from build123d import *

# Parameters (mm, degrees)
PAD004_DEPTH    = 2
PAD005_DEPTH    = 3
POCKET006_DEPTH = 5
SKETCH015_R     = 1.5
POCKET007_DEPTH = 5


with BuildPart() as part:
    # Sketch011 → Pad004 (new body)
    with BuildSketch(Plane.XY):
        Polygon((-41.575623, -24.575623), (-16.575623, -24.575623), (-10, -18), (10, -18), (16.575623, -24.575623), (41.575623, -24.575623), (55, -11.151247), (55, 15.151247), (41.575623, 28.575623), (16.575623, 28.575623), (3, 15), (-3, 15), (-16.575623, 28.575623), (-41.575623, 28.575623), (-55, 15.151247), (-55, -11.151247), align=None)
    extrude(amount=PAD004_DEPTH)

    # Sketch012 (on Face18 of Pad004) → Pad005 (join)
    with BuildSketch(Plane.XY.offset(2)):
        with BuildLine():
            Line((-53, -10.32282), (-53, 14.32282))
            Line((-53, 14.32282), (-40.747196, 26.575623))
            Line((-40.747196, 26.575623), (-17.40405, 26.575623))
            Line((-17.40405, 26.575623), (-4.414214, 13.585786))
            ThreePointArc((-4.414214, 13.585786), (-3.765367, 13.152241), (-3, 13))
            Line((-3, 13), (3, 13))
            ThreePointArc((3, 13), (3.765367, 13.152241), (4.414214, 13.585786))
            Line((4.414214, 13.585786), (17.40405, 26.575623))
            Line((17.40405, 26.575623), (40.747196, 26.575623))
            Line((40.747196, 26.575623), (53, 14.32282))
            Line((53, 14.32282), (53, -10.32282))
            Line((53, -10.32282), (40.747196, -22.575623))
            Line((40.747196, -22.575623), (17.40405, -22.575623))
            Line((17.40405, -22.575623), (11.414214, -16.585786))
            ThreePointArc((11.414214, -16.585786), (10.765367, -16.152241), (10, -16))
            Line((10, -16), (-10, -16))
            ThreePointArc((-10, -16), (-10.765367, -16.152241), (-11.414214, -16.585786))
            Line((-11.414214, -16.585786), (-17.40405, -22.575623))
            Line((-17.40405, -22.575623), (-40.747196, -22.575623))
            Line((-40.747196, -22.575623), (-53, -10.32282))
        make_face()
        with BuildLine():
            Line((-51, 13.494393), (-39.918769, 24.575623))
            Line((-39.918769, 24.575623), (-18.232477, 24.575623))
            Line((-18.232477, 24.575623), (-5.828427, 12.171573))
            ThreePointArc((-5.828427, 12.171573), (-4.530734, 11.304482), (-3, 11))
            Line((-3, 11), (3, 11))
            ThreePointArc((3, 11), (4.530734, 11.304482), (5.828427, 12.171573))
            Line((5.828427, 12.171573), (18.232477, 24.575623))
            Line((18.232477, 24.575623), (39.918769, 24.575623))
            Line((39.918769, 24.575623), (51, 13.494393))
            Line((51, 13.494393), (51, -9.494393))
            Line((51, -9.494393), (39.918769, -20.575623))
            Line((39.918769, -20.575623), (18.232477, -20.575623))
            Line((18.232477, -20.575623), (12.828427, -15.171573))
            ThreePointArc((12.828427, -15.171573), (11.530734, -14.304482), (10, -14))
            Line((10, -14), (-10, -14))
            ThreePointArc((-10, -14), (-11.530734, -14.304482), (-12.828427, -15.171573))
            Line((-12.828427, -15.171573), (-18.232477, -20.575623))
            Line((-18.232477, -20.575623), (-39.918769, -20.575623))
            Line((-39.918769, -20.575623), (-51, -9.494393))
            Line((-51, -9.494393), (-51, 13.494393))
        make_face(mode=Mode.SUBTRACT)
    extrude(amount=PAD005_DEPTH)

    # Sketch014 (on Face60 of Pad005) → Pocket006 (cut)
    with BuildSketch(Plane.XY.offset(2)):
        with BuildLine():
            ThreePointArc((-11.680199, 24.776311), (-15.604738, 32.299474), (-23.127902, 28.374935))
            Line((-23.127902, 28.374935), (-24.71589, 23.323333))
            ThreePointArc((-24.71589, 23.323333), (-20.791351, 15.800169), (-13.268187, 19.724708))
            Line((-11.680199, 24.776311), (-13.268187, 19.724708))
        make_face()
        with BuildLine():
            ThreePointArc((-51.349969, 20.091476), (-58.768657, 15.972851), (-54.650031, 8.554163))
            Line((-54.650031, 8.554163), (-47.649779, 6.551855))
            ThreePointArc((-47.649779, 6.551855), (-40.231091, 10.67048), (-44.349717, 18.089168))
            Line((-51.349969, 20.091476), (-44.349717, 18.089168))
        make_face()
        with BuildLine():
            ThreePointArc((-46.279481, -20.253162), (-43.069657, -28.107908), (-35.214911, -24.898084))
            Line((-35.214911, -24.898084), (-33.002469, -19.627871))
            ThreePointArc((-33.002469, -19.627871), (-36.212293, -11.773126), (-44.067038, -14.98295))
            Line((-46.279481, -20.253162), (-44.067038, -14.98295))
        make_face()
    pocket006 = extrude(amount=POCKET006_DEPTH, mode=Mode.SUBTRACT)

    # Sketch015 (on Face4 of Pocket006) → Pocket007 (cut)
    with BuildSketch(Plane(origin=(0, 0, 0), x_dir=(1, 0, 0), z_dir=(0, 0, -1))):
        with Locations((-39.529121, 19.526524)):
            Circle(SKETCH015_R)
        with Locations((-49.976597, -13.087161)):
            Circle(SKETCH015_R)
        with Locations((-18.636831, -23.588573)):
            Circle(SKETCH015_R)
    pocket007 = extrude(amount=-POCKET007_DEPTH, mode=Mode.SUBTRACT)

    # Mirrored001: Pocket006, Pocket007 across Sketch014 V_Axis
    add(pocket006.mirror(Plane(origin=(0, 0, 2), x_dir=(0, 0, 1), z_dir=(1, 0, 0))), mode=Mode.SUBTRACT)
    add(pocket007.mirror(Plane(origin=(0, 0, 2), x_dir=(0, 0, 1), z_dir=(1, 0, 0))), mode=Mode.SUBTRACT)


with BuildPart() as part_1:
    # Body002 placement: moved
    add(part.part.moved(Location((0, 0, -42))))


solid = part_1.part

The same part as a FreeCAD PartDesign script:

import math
import FreeCAD as App
import Part
import Sketcher


def add_polygon(sketch, points):
    """Adds a closed chain of lines whose ends are joined by coincident constraints."""
    first, n = sketch.GeometryCount, len(points)
    for a, b in zip(points, points[1:] + points[:1]):
        sketch.addGeometry(Part.LineSegment(App.Vector(*a, 0), App.Vector(*b, 0)), False)
    for i in range(n):
        sketch.addConstraint(Sketcher.Constraint("Coincident", first + i, 2, first + (i + 1) % n, 1))

doc = App.newDocument("Part")
body = doc.addObject("PartDesign::Body", "Body")

# Sketch on XY plane
sketch1 = body.newObject("Sketcher::SketchObject", "Sketch")
sketch1.AttachmentSupport = (doc.getObject("XY_Plane"), [""])
sketch1.MapMode = "FlatFace"
add_polygon(sketch1, [(-42, -25), (-17, -25), (-10, -18), (10, -18), (17, -25), (42, -25), (55, -11), (55, 15), (42, 29), (17, 29), (3, 15), (-3, 15), (-17, 29), (-42, 29), (-55, 15), (-55, -11)])  # lines 0-15
sketch1.addConstraint(Sketcher.Constraint("Horizontal", 0))
sketch1.addConstraint(Sketcher.Constraint("Horizontal", 2))
sketch1.addConstraint(Sketcher.Constraint("Horizontal", 4))
sketch1.addConstraint(Sketcher.Constraint("Vertical", 6))
sketch1.addConstraint(Sketcher.Constraint("Horizontal", 8))
sketch1.addConstraint(Sketcher.Constraint("Horizontal", 10))
sketch1.addConstraint(Sketcher.Constraint("Horizontal", 12))
sketch1.addConstraint(Sketcher.Constraint("Vertical", 14))
sketch1.addConstraint(Sketcher.Constraint("Symmetric", 0, 2, 3, 2, -2))
sketch1.addConstraint(Sketcher.Constraint("Symmetric", 8, 2, 11, 2, -2))
sketch1.addConstraint(Sketcher.Constraint("Symmetric", 6, 2, 13, 2, -2))
sketch1.addConstraint(Sketcher.Constraint("Perpendicular", 1, 3))
sketch1.addConstraint(Sketcher.Constraint("Perpendicular", 3, 5))
sketch1.addConstraint(Sketcher.Constraint("Perpendicular", 5, 7))
sketch1.addConstraint(Sketcher.Constraint("Perpendicular", 7, 9))
sketch1.addConstraint(Sketcher.Constraint("Perpendicular", 9, 11))
sketch1.addConstraint(Sketcher.Constraint("Perpendicular", 11, 13))
sketch1.addConstraint(Sketcher.Constraint("Perpendicular", 13, 15))
sketch1.addConstraint(Sketcher.Constraint("Horizontal", 5, 2, 14, 2))
sketch1.addConstraint(Sketcher.Constraint("Vertical", 4, 2, 7, 2))
sketch1.addConstraint(Sketcher.Constraint("Vertical", 3, 2, 8, 2))
sketch1.addConstraint(Sketcher.Constraint("Vertical", 12, 2, 15, 2))
sketch1.addConstraint(Sketcher.Constraint("DistanceX", 0, 1, 0, 2, 25.0))
sketch1.addConstraint(Sketcher.Constraint("DistanceX", 2, 1, 2, 2, 20.0))
sketch1.addConstraint(Sketcher.Constraint("DistanceX", 10, 2, 10, 1, 6.0))
sketch1.addConstraint(Sketcher.Constraint("DistanceY", 1, 2, -1, 1, 18.0))
sketch1.addConstraint(Sketcher.Constraint("DistanceX", -1, 1, 5, 2, 55.0))
sketch1.addConstraint(Sketcher.Constraint("DistanceY", -1, 1, 9, 2, 15.0))
sketch1.addConstraint(Sketcher.Constraint("Distance", 9, 19.19883))
pad1 = body.newObject("PartDesign::Pad", "Pad")
pad1.Profile = sketch1
pad1.Length = 2

# Sketch on XY plane
sketch2 = body.newObject("Sketcher::SketchObject", "Sketch001")
sketch2.AttachmentSupport = (doc.getObject("XY_Plane"), [""])
sketch2.MapMode = "FlatFace"
sketch2.AttachmentOffset = App.Placement(App.Vector(0, 0, 2), App.Rotation())
sketch2.addGeometry(Part.LineSegment(App.Vector(-53, 14.3, 0), App.Vector(-53, -10.3, 0)), False)
sketch2.addGeometry(Part.LineSegment(App.Vector(-53, -10.3, 0), App.Vector(-40.7, -22.6, 0)), False)
sketch2.addGeometry(Part.LineSegment(App.Vector(-40.7, -22.6, 0), App.Vector(-17.4, -22.6, 0)), False)
sketch2.addGeometry(Part.LineSegment(App.Vector(-17.4, -22.6, 0), App.Vector(-11.4, -16.6, 0)), False)
sketch2.addGeometry(Part.ArcOfCircle(Part.Circle(App.Vector(-10, -18, 0), App.Vector(0, 0, 1), 2), math.radians(90), math.radians(135)), False)
sketch2.addGeometry(Part.LineSegment(App.Vector(-10, -16, 0), App.Vector(10, -16, 0)), False)
sketch2.addGeometry(Part.ArcOfCircle(Part.Circle(App.Vector(10, -18, 0), App.Vector(0, 0, 1), 2), math.radians(45), math.radians(90)), False)
sketch2.addGeometry(Part.LineSegment(App.Vector(11.4, -16.6, 0), App.Vector(17.4, -22.6, 0)), False)
sketch2.addGeometry(Part.LineSegment(App.Vector(17.4, -22.6, 0), App.Vector(40.7, -22.6, 0)), False)
sketch2.addGeometry(Part.LineSegment(App.Vector(40.7, -22.6, 0), App.Vector(53, -10.3, 0)), False)
sketch2.addGeometry(Part.LineSegment(App.Vector(53, -10.3, 0), App.Vector(53, 14.3, 0)), False)
sketch2.addGeometry(Part.LineSegment(App.Vector(53, 14.3, 0), App.Vector(40.7, 26.6, 0)), False)
sketch2.addGeometry(Part.LineSegment(App.Vector(40.7, 26.6, 0), App.Vector(17.4, 26.6, 0)), False)
sketch2.addGeometry(Part.LineSegment(App.Vector(17.4, 26.6, 0), App.Vector(4.4, 13.6, 0)), False)
sketch2.addGeometry(Part.ArcOfCircle(Part.Circle(App.Vector(3, 15, 0), App.Vector(0, 0, 1), 2), math.radians(-90), math.radians(-45)), False)
sketch2.addGeometry(Part.LineSegment(App.Vector(3, 13, 0), App.Vector(-3, 13, 0)), False)
sketch2.addGeometry(Part.ArcOfCircle(Part.Circle(App.Vector(-3, 15, 0), App.Vector(0, 0, 1), 2), math.radians(-135), math.radians(-90)), False)
sketch2.addGeometry(Part.LineSegment(App.Vector(-4.4, 13.6, 0), App.Vector(-17.4, 26.6, 0)), False)
sketch2.addGeometry(Part.LineSegment(App.Vector(-17.4, 26.6, 0), App.Vector(-40.7, 26.6, 0)), False)
sketch2.addGeometry(Part.LineSegment(App.Vector(-40.7, 26.6, 0), App.Vector(-53, 14.3, 0)), False)
sketch2.addGeometry(Part.LineSegment(App.Vector(-51, 13.5, 0), App.Vector(-39.9, 24.6, 0)), False)
sketch2.addGeometry(Part.LineSegment(App.Vector(-39.9, 24.6, 0), App.Vector(-18.2, 24.6, 0)), False)
sketch2.addGeometry(Part.LineSegment(App.Vector(-18.2, 24.6, 0), App.Vector(-5.8, 12.2, 0)), False)
sketch2.addGeometry(Part.ArcOfCircle(Part.Circle(App.Vector(-3, 15, 0), App.Vector(0, 0, 1), 4), math.radians(-135), math.radians(-90)), False)
sketch2.addGeometry(Part.LineSegment(App.Vector(-3, 11, 0), App.Vector(3, 11, 0)), False)
sketch2.addGeometry(Part.ArcOfCircle(Part.Circle(App.Vector(3, 15, 0), App.Vector(0, 0, 1), 4), math.radians(-90), math.radians(-45)), False)
sketch2.addGeometry(Part.LineSegment(App.Vector(5.8, 12.2, 0), App.Vector(18.2, 24.6, 0)), False)
sketch2.addGeometry(Part.LineSegment(App.Vector(18.2, 24.6, 0), App.Vector(39.9, 24.6, 0)), False)
sketch2.addGeometry(Part.LineSegment(App.Vector(39.9, 24.6, 0), App.Vector(51, 13.5, 0)), False)
sketch2.addGeometry(Part.LineSegment(App.Vector(51, 13.5, 0), App.Vector(51, -9.5, 0)), False)
sketch2.addGeometry(Part.LineSegment(App.Vector(51, -9.5, 0), App.Vector(39.9, -20.6, 0)), False)
sketch2.addGeometry(Part.LineSegment(App.Vector(39.9, -20.6, 0), App.Vector(18.2, -20.6, 0)), False)
sketch2.addGeometry(Part.LineSegment(App.Vector(18.2, -20.6, 0), App.Vector(12.8, -15.2, 0)), False)
sketch2.addGeometry(Part.ArcOfCircle(Part.Circle(App.Vector(10, -18, 0), App.Vector(0, 0, 1), 4), math.radians(45), math.radians(90)), False)
sketch2.addGeometry(Part.LineSegment(App.Vector(10, -14, 0), App.Vector(-10, -14, 0)), False)
sketch2.addGeometry(Part.ArcOfCircle(Part.Circle(App.Vector(-10, -18, 0), App.Vector(0, 0, 1), 4), math.radians(90), math.radians(135)), False)
sketch2.addGeometry(Part.LineSegment(App.Vector(-12.8, -15.2, 0), App.Vector(-18.2, -20.6, 0)), False)
sketch2.addGeometry(Part.LineSegment(App.Vector(-18.2, -20.6, 0), App.Vector(-39.9, -20.6, 0)), False)
sketch2.addGeometry(Part.LineSegment(App.Vector(-39.9, -20.6, 0), App.Vector(-51, -9.5, 0)), False)
sketch2.addGeometry(Part.LineSegment(App.Vector(-51, -9.5, 0), App.Vector(-51, 13.5, 0)), False)
sketch2.addConstraint(Sketcher.Constraint("Coincident", 0, 2, 1, 1))
sketch2.addConstraint(Sketcher.Constraint("Coincident", 1, 2, 2, 1))
sketch2.addConstraint(Sketcher.Constraint("Coincident", 2, 2, 3, 1))
sketch2.addConstraint(Sketcher.Constraint("Tangent", 3, 2, 4, 2))
sketch2.addConstraint(Sketcher.Constraint("Tangent", 4, 1, 5, 1))
sketch2.addConstraint(Sketcher.Constraint("Tangent", 5, 2, 6, 2))
sketch2.addConstraint(Sketcher.Constraint("Tangent", 6, 1, 7, 1))
sketch2.addConstraint(Sketcher.Constraint("Coincident", 7, 2, 8, 1))
sketch2.addConstraint(Sketcher.Constraint("Coincident", 8, 2, 9, 1))
sketch2.addConstraint(Sketcher.Constraint("Coincident", 9, 2, 10, 1))
sketch2.addConstraint(Sketcher.Constraint("Coincident", 10, 2, 11, 1))
sketch2.addConstraint(Sketcher.Constraint("Coincident", 11, 2, 12, 1))
sketch2.addConstraint(Sketcher.Constraint("Coincident", 12, 2, 13, 1))
sketch2.addConstraint(Sketcher.Constraint("Tangent", 13, 2, 14, 2))
sketch2.addConstraint(Sketcher.Constraint("Tangent", 14, 1, 15, 1))
sketch2.addConstraint(Sketcher.Constraint("Tangent", 15, 2, 16, 2))
sketch2.addConstraint(Sketcher.Constraint("Tangent", 16, 1, 17, 1))
sketch2.addConstraint(Sketcher.Constraint("Coincident", 17, 2, 18, 1))
sketch2.addConstraint(Sketcher.Constraint("Coincident", 18, 2, 19, 1))
sketch2.addConstraint(Sketcher.Constraint("Coincident", 19, 2, 0, 1))
sketch2.addConstraint(Sketcher.Constraint("Coincident", 20, 2, 21, 1))
sketch2.addConstraint(Sketcher.Constraint("Coincident", 21, 2, 22, 1))
sketch2.addConstraint(Sketcher.Constraint("Tangent", 22, 2, 23, 1))
sketch2.addConstraint(Sketcher.Constraint("Tangent", 23, 2, 24, 1))
sketch2.addConstraint(Sketcher.Constraint("Tangent", 24, 2, 25, 1))
sketch2.addConstraint(Sketcher.Constraint("Tangent", 25, 2, 26, 1))
sketch2.addConstraint(Sketcher.Constraint("Coincident", 26, 2, 27, 1))
sketch2.addConstraint(Sketcher.Constraint("Coincident", 27, 2, 28, 1))
sketch2.addConstraint(Sketcher.Constraint("Coincident", 28, 2, 29, 1))
sketch2.addConstraint(Sketcher.Constraint("Coincident", 29, 2, 30, 1))
sketch2.addConstraint(Sketcher.Constraint("Coincident", 30, 2, 31, 1))
sketch2.addConstraint(Sketcher.Constraint("Coincident", 31, 2, 32, 1))
sketch2.addConstraint(Sketcher.Constraint("Tangent", 32, 2, 33, 1))
sketch2.addConstraint(Sketcher.Constraint("Tangent", 33, 2, 34, 1))
sketch2.addConstraint(Sketcher.Constraint("Tangent", 34, 2, 35, 1))
sketch2.addConstraint(Sketcher.Constraint("Tangent", 35, 2, 36, 1))
sketch2.addConstraint(Sketcher.Constraint("Coincident", 36, 2, 37, 1))
sketch2.addConstraint(Sketcher.Constraint("Coincident", 37, 2, 38, 1))
sketch2.addConstraint(Sketcher.Constraint("Coincident", 38, 2, 39, 1))
sketch2.addConstraint(Sketcher.Constraint("Coincident", 39, 2, 20, 1))
sketch2.addConstraint(Sketcher.Constraint("Vertical", 0))
sketch2.addConstraint(Sketcher.Constraint("Horizontal", 2))
sketch2.addConstraint(Sketcher.Constraint("Horizontal", 5))
sketch2.addConstraint(Sketcher.Constraint("Horizontal", 8))
sketch2.addConstraint(Sketcher.Constraint("Vertical", 10))
sketch2.addConstraint(Sketcher.Constraint("Horizontal", 12))
sketch2.addConstraint(Sketcher.Constraint("Horizontal", 15))
sketch2.addConstraint(Sketcher.Constraint("Horizontal", 18))
sketch2.addConstraint(Sketcher.Constraint("Horizontal", 21))
sketch2.addConstraint(Sketcher.Constraint("Horizontal", 24))
sketch2.addConstraint(Sketcher.Constraint("Horizontal", 27))
sketch2.addConstraint(Sketcher.Constraint("Vertical", 29))
sketch2.addConstraint(Sketcher.Constraint("Horizontal", 31))
sketch2.addConstraint(Sketcher.Constraint("Horizontal", 34))
sketch2.addConstraint(Sketcher.Constraint("Horizontal", 37))
sketch2.addConstraint(Sketcher.Constraint("Vertical", 39))
sketch2.addConstraint(Sketcher.Constraint("Coincident", 23, 3, 16, 3))
sketch2.addConstraint(Sketcher.Constraint("Coincident", 25, 3, 14, 3))
sketch2.addConstraint(Sketcher.Constraint("Coincident", 33, 3, 6, 3))
sketch2.addConstraint(Sketcher.Constraint("Coincident", 35, 3, 4, 3))
sketch2.addConstraint(Sketcher.Constraint("Equal", 4, 6))
sketch2.addConstraint(Sketcher.Constraint("Equal", 6, 14))
sketch2.addConstraint(Sketcher.Constraint("Equal", 14, 16))
sketch2.addConstraint(Sketcher.Constraint("Equal", 25, 33))
sketch2.addConstraint(Sketcher.Constraint("Symmetric", 3, 2, 6, 1, -2))
sketch2.addConstraint(Sketcher.Constraint("Symmetric", 1, 2, 8, 2, -2))
sketch2.addConstraint(Sketcher.Constraint("Symmetric", 0, 2, 9, 2, -2))
sketch2.addConstraint(Sketcher.Constraint("Symmetric", 13, 2, 16, 1, -2))
sketch2.addConstraint(Sketcher.Constraint("Symmetric", 11, 2, 18, 2, -2))
sketch2.addConstraint(Sketcher.Constraint("Symmetric", 21, 2, 26, 2, -2))
sketch2.addConstraint(Sketcher.Constraint("Symmetric", 31, 2, 36, 2, -2))
sketch2.addConstraint(Sketcher.Constraint("Symmetric", 29, 2, 38, 2, -2))
sketch2.addConstraint(Sketcher.Constraint("Perpendicular", 1, 3))
sketch2.addConstraint(Sketcher.Constraint("Perpendicular", 3, 7))
sketch2.addConstraint(Sketcher.Constraint("Perpendicular", 9, 11))
sketch2.addConstraint(Sketcher.Constraint("Perpendicular", 11, 13))
sketch2.addConstraint(Sketcher.Constraint("Perpendicular", 17, 19))
sketch2.addConstraint(Sketcher.Constraint("Parallel", 19, 20))
sketch2.addConstraint(Sketcher.Constraint("Perpendicular", 20, 22))
sketch2.addConstraint(Sketcher.Constraint("Perpendicular", 26, 28))
sketch2.addConstraint(Sketcher.Constraint("Perpendicular", 28, 30))
sketch2.addConstraint(Sketcher.Constraint("Perpendicular", 30, 32))
sketch2.addConstraint(Sketcher.Constraint("Perpendicular", 36, 38))
sketch2.addConstraint(Sketcher.Constraint("Horizontal", 28, 2, 39, 2))
sketch2.addConstraint(Sketcher.Constraint("Vertical", 8, 2, 11, 2))
sketch2.addConstraint(Sketcher.Constraint("Vertical", 7, 2, 12, 2))
sketch2.addConstraint(Sketcher.Constraint("Vertical", 27, 2, 30, 2))
sketch2.addConstraint(Sketcher.Constraint("Vertical", 26, 2, 31, 2))
sketch2.addConstraint(Sketcher.Constraint("Radius", 23, 3.999999))
sketch2.addConstraint(Sketcher.Constraint("DistanceX", 5, 1, 5, 2, 20.0))
sketch2.addConstraint(Sketcher.Constraint("DistanceX", 15, 2, 15, 1, 6.0))
sketch2.addConstraint(Sketcher.Constraint("DistanceY", -1, 1, 23, 3, 14.999999))
sketch2.addConstraint(Sketcher.Constraint("DistanceY", 33, 3, -1, 1, 17.999999))
sketch2.addConstraint(Sketcher.Constraint("DistanceX", 0, 2, -1, 1, 53.0))
sketch2.addConstraint(Sketcher.Constraint("DistanceY", 4, 1, -1, 1, 16.0))
sketch2.addConstraint(Sketcher.Constraint("DistanceX", -1, 1, 28, 2, 51.0))
sketch2.addConstraint(Sketcher.Constraint("DistanceY", 20, 2, 18, 2, 2.0))
sketch2.addConstraint(Sketcher.Constraint("DistanceX", 21, 1, 21, 2, 21.686292))
sketch2.addConstraint(Sketcher.Constraint("DistanceY", 0, 2, 0, 1, 24.64564))
sketch2.addConstraint(Sketcher.Constraint("Distance", 1, 17.328081))
pad2 = body.newObject("PartDesign::Pad", "Pad001")
pad2.Profile = sketch2
pad2.Length = 3

# Sketch on XY plane
sketch3 = body.newObject("Sketcher::SketchObject", "Sketch002")
sketch3.AttachmentSupport = (doc.getObject("XY_Plane"), [""])
sketch3.MapMode = "FlatFace"
sketch3.AttachmentOffset = App.Placement(App.Vector(0, 0, 2), App.Rotation())
sketch3.addGeometry(Part.ArcOfCircle(Part.Circle(App.Vector(-17, 27, 0), App.Vector(0, 0, 1), 6), math.radians(-17), math.radians(163)), False)
sketch3.addGeometry(Part.LineSegment(App.Vector(-23, 28, 0), App.Vector(-25, 23, 0)), False)
sketch3.addGeometry(Part.ArcOfCircle(Part.Circle(App.Vector(-19, 22, 0), App.Vector(0, 0, 1), 6), math.radians(163), math.radians(343)), False)
sketch3.addGeometry(Part.LineSegment(App.Vector(-13, 20, 0), App.Vector(-12, 25, 0)), False)
sketch3.addGeometry(Part.ArcOfCircle(Part.Circle(App.Vector(-53, 14, 0), App.Vector(0, 0, 1), 6), math.radians(74), math.radians(254)), False)
sketch3.addGeometry(Part.LineSegment(App.Vector(-55, 9, 0), App.Vector(-48, 7, 0)), False)
sketch3.addGeometry(Part.ArcOfCircle(Part.Circle(App.Vector(-46, 12, 0), App.Vector(0, 0, 1), 6), math.radians(-106), math.radians(74)), False)
sketch3.addGeometry(Part.LineSegment(App.Vector(-44, 18, 0), App.Vector(-51, 20, 0)), False)
sketch3.addGeometry(Part.ArcOfCircle(Part.Circle(App.Vector(-41, -23, 0), App.Vector(0, 0, 1), 6), math.radians(157), math.radians(337)), False)
sketch3.addGeometry(Part.LineSegment(App.Vector(-35, -25, 0), App.Vector(-33, -20, 0)), False)
sketch3.addGeometry(Part.ArcOfCircle(Part.Circle(App.Vector(-39, -17, 0), App.Vector(0, 0, 1), 6), math.radians(-23), math.radians(157)), False)
sketch3.addGeometry(Part.LineSegment(App.Vector(-44, -15, 0), App.Vector(-46, -20, 0)), False)
sketch3.addConstraint(Sketcher.Constraint("Tangent", 0, 2, 1, 1))
sketch3.addConstraint(Sketcher.Constraint("Tangent", 1, 2, 2, 1))
sketch3.addConstraint(Sketcher.Constraint("Tangent", 2, 2, 3, 1))
sketch3.addConstraint(Sketcher.Constraint("Tangent", 3, 2, 0, 1))
sketch3.addConstraint(Sketcher.Constraint("Tangent", 4, 2, 5, 1))
sketch3.addConstraint(Sketcher.Constraint("Tangent", 5, 2, 6, 1))
sketch3.addConstraint(Sketcher.Constraint("Tangent", 6, 2, 7, 1))
sketch3.addConstraint(Sketcher.Constraint("Tangent", 7, 2, 4, 1))
sketch3.addConstraint(Sketcher.Constraint("Tangent", 8, 2, 9, 1))
sketch3.addConstraint(Sketcher.Constraint("Tangent", 9, 2, 10, 1))
sketch3.addConstraint(Sketcher.Constraint("Tangent", 10, 2, 11, 1))
sketch3.addConstraint(Sketcher.Constraint("Tangent", 11, 2, 8, 1))
sketch3.addConstraint(Sketcher.Constraint("Equal", 0, 2))
sketch3.addConstraint(Sketcher.Constraint("Equal", 2, 4))
sketch3.addConstraint(Sketcher.Constraint("Equal", 4, 6))
sketch3.addConstraint(Sketcher.Constraint("Equal", 6, 8))
sketch3.addConstraint(Sketcher.Constraint("Equal", 8, 10))
sketch3.addConstraint(Sketcher.Constraint("Radius", 0, 6.0))
sketch3.addConstraint(Sketcher.Constraint("DistanceX", 4, 3, -1, 1, 53.000001))
sketch3.addConstraint(Sketcher.Constraint("DistanceX", 0, 2, -1, 1, 23.127902))
sketch3.addConstraint(Sketcher.Constraint("DistanceX", 3, 2, -1, 1, 11.680199))
sketch3.addConstraint(Sketcher.Constraint("DistanceY", 4, 3, 2, 3, 7.201201))
sketch3.addConstraint(Sketcher.Constraint("DistanceY", 1, 2, 0, 2, 5.051602))
sketch3.addConstraint(Sketcher.Constraint("Distance", 9, 5.715772))
sketch3.addConstraint(Sketcher.Constraint("DistanceY", -1, 1, 2, 3, 21.52402))
sketch3.addConstraint(Sketcher.Constraint("DistanceY", -1, 1, 6, 3, 12.320511))
sketch3.addConstraint(Sketcher.Constraint("DistanceY", 10, 3, -1, 1, 17.305411))
sketch3.addConstraint(Sketcher.Constraint("DistanceX", 4, 2, -1, 1, 54.650031))
sketch3.addConstraint(Sketcher.Constraint("DistanceX", 8, 2, -1, 1, 35.214911))
sketch3.addConstraint(Sketcher.Constraint("DistanceX", 9, 2, -1, 1, 33.002469))
pocket1 = body.newObject("PartDesign::Pocket", "Pocket")
pocket1.Profile = sketch3
pocket1.Length = 5
pocket1.Reversed = True

# Sketch on XY plane
sketch4 = body.newObject("Sketcher::SketchObject", "Sketch003")
sketch4.AttachmentSupport = (doc.getObject("XY_Plane"), [""])
sketch4.MapMode = "FlatFace"
sketch4.addGeometry(Part.Circle(App.Vector(-39.5, -19.5, 0), App.Vector(0, 0, 1), 1.5), False)
sketch4.addGeometry(Part.Circle(App.Vector(-50, 13.1, 0), App.Vector(0, 0, 1), 1.5), False)
sketch4.addGeometry(Part.Circle(App.Vector(-18.6, 23.6, 0), App.Vector(0, 0, 1), 1.5), False)
sketch4.addConstraint(Sketcher.Constraint("Equal", 0, 1))
sketch4.addConstraint(Sketcher.Constraint("Equal", 1, 2))
sketch4.addConstraint(Sketcher.Constraint("Diameter", 0, 3.0))
sketch4.addConstraint(Sketcher.Constraint("DistanceX", 0, 3, -1, 1, 39.529121))
sketch4.addConstraint(Sketcher.Constraint("DistanceY", -1, 1, 1, 3, 13.087161))
sketch4.addConstraint(Sketcher.Constraint("DistanceX", 2, 3, -1, 1, 18.636831))
sketch4.addConstraint(Sketcher.Constraint("DistanceY", 0, 3, -1, 1, 19.526524))
sketch4.addConstraint(Sketcher.Constraint("DistanceX", 1, 3, -1, 1, 49.976597))
sketch4.addConstraint(Sketcher.Constraint("DistanceY", -1, 1, 2, 3, 23.588573))
pocket2 = body.newObject("PartDesign::Pocket", "Pocket001")
pocket2.Profile = sketch4
pocket2.Length = 5
pocket2.Reversed = True
doc.recompute()

mirrored = body.newObject("PartDesign::Mirrored", "Mirrored")
mirrored.Originals = [pocket1, pocket2]
mirrored.MirrorPlane = (doc.getObject("YZ_Plane"), [""])
body.Tip = mirrored
body2 = doc.addObject("PartDesign::Body", "Body001")
doc.recompute()

body.Placement = App.Placement(App.Vector(0, 0, -42), App.Rotation(App.Vector(0, 0, 1), 0))
boolean = body2.newObject("PartDesign::Boolean", "Boolean")
boolean.Type = "Fuse"
boolean.addObjects([body])

doc.recompute()
